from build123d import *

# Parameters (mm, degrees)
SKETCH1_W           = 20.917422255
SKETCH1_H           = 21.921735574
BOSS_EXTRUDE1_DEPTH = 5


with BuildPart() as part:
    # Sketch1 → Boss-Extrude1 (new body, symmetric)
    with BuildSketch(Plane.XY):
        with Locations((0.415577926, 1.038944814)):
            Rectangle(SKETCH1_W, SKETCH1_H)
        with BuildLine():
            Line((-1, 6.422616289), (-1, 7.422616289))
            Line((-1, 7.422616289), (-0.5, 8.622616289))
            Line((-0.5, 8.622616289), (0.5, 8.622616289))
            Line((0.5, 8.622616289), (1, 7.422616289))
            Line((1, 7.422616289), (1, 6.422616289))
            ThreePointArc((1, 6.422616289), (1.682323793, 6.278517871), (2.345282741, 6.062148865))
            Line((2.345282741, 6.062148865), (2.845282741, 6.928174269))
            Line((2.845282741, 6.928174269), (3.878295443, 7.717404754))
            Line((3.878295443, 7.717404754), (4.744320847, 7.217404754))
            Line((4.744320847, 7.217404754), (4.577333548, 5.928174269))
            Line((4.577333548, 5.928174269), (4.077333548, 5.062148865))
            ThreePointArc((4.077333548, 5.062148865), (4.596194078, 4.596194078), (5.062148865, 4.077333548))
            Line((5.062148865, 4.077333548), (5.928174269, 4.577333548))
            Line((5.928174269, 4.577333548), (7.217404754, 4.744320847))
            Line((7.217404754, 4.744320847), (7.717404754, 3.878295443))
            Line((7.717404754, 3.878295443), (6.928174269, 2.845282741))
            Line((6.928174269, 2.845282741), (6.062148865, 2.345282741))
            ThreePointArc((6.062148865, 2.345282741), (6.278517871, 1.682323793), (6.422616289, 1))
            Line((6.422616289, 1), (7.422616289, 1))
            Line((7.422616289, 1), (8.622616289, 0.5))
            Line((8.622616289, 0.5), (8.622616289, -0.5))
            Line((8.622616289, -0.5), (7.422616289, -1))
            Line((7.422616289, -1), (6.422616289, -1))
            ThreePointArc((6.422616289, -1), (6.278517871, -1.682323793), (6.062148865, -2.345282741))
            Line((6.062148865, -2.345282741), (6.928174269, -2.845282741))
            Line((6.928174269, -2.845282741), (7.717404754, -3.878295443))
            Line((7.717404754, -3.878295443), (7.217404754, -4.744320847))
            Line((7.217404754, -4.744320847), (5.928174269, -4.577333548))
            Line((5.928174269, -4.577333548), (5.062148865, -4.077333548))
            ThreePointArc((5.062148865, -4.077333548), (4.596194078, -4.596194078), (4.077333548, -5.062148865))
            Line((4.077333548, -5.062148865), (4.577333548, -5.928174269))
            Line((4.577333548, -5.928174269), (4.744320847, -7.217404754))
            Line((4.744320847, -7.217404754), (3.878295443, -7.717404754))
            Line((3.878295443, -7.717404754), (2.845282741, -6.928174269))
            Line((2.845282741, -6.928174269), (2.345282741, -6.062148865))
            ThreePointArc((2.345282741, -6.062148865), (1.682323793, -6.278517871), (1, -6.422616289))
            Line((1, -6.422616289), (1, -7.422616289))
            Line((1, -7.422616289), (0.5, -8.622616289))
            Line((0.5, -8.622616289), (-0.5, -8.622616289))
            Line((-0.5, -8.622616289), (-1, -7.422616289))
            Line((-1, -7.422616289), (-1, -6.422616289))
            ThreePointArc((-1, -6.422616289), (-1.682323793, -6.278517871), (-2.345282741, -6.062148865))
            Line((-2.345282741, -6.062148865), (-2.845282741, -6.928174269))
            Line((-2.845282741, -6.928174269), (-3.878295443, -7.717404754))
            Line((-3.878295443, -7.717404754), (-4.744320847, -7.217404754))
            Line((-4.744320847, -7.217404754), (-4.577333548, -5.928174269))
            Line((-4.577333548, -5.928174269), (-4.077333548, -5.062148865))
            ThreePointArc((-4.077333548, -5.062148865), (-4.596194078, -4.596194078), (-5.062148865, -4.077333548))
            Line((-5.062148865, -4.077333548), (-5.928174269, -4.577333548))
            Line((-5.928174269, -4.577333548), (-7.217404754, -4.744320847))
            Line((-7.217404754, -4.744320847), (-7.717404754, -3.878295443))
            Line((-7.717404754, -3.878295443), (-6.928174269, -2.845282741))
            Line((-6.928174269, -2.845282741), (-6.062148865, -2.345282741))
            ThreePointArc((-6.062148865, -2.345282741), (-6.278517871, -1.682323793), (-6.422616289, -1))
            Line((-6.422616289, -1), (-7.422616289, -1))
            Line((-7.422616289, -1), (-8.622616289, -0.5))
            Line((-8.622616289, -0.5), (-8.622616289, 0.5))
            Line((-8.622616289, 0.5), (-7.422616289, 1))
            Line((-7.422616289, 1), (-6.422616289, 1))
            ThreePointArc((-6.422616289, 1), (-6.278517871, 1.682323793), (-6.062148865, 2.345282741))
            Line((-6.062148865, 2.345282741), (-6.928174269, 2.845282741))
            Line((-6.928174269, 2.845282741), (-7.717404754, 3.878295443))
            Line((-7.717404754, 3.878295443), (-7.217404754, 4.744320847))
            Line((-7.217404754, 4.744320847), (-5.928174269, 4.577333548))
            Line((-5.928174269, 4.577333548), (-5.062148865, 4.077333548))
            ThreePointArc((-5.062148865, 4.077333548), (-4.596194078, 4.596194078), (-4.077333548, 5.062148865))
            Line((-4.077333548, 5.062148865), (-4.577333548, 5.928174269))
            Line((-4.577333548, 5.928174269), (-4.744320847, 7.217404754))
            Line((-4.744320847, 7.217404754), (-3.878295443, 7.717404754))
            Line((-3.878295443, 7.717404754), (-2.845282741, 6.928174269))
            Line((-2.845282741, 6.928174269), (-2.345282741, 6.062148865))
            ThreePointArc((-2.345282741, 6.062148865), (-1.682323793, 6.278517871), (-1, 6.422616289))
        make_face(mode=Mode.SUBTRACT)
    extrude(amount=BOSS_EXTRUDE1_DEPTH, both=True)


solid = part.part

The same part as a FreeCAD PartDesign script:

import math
import FreeCAD as App
import Part
import Sketcher

V = App.Vector
Q = App.Units.Quantity

doc = App.newDocument("Part")
body = doc.addObject("PartDesign::Body", "Body")

# Sketch on XY plane
sketch1 = body.newObject("Sketcher::SketchObject", "Sketch")
sketch1.AttachmentSupport = (doc.getObject("XY_Plane"), [""])
sketch1.MapMode = "FlatFace"
sketch1.addGeometry([
    Part.LineSegment(V(-10.043133, 11.999813, 0), V(-10.043133, -9.921923, 0)),  # 0
    Part.LineSegment(V(-10.043133, -9.921923, 0), V(10.874289, -9.921923, 0)),  # 1
    Part.LineSegment(V(10.874289, -9.921923, 0), V(10.874289, 11.999813, 0)),  # 2
    Part.LineSegment(V(10.874289, 11.999813, 0), V(-10.043133, 11.999813, 0)),  # 3
    Part.ArcOfCircle(Part.Circle(V(0, 0, 0), V(0, 0, 1), 6.5), math.radians(98.849883), math.radians(111.150117)),  # 4
    Part.LineSegment(V(-1, 6.422616, 0), V(-1, 7.422616, 0)),  # 5
    Part.LineSegment(V(-1, 7.422616, 0), V(-0.5, 8.622616, 0)),  # 6
    Part.LineSegment(V(-0.5, 8.622616, 0), V(0.5, 8.622616, 0)),  # 7
    Part.LineSegment(V(0.5, 8.622616, 0), V(1, 7.422616, 0)),  # 8
    Part.LineSegment(V(1, 7.422616, 0), V(1, 6.422616, 0)),  # 9
    Part.ArcOfCircle(Part.Circle(V(0, 0, 0), V(0, 0, 1), 6.5), math.radians(68.849883), math.radians(81.150117)),  # 10
    Part.LineSegment(V(2.345283, 6.062149, 0), V(2.845283, 6.928174, 0)),  # 11
    Part.LineSegment(V(2.845283, 6.928174, 0), V(3.878295, 7.717405, 0)),  # 12
    Part.LineSegment(V(3.878295, 7.717405, 0), V(4.744321, 7.217405, 0)),  # 13
    Part.LineSegment(V(4.744321, 7.217405, 0), V(4.577334, 5.928174, 0)),  # 14
    Part.LineSegment(V(4.577334, 5.928174, 0), V(4.077334, 5.062149, 0)),  # 15
    Part.ArcOfCircle(Part.Circle(V(0, 0, 0), V(0, 0, 1), 6.5), math.radians(38.849883), math.radians(51.150117)),  # 16
    Part.LineSegment(V(5.062149, 4.077334, 0), V(5.928174, 4.577334, 0)),  # 17
    Part.LineSegment(V(5.928174, 4.577334, 0), V(7.217405, 4.744321, 0)),  # 18
    Part.LineSegment(V(7.217405, 4.744321, 0), V(7.717405, 3.878295, 0)),  # 19
    Part.LineSegment(V(7.717405, 3.878295, 0), V(6.928174, 2.845283, 0)),  # 20
    Part.LineSegment(V(6.928174, 2.845283, 0), V(6.062149, 2.345283, 0)),  # 21
    Part.ArcOfCircle(Part.Circle(V(0, 0, 0), V(0, 0, 1), 6.5), math.radians(8.849883), math.radians(21.150117)),  # 22
    Part.LineSegment(V(6.422616, 1, 0), V(7.422616, 1, 0)),  # 23
    Part.LineSegment(V(7.422616, 1, 0), V(8.622616, 0.5, 0)),  # 24
    Part.LineSegment(V(8.622616, 0.5, 0), V(8.622616, -0.5, 0)),  # 25
    Part.LineSegment(V(8.622616, -0.5, 0), V(7.422616, -1, 0)),  # 26
    Part.LineSegment(V(7.422616, -1, 0), V(6.422616, -1, 0)),  # 27
    Part.ArcOfCircle(Part.Circle(V(0, 0, 0), V(0, 0, 1), 6.5), math.radians(-21.150117), math.radians(-8.849883)),  # 28
    Part.LineSegment(V(6.062149, -2.345283, 0), V(6.928174, -2.845283, 0)),  # 29
    Part.LineSegment(V(6.928174, -2.845283, 0), V(7.717405, -3.878295, 0)),  # 30
    Part.LineSegment(V(7.717405, -3.878295, 0), V(7.217405, -4.744321, 0)),  # 31
    Part.LineSegment(V(7.217405, -4.744321, 0), V(5.928174, -4.577334, 0)),  # 32
    Part.LineSegment(V(5.928174, -4.577334, 0), V(5.062149, -4.077334, 0)),  # 33
    Part.ArcOfCircle(Part.Circle(V(0, 0, 0), V(0, 0, 1), 6.5), math.radians(-51.150117), math.radians(-38.849883)),  # 34
    Part.LineSegment(V(4.077334, -5.062149, 0), V(4.577334, -5.928174, 0)),  # 35
    Part.LineSegment(V(4.577334, -5.928174, 0), V(4.744321, -7.217405, 0)),  # 36
    Part.LineSegment(V(4.744321, -7.217405, 0), V(3.878295, -7.717405, 0)),  # 37
    Part.LineSegment(V(3.878295, -7.717405, 0), V(2.845283, -6.928174, 0)),  # 38
    Part.LineSegment(V(2.845283, -6.928174, 0), V(2.345283, -6.062149, 0)),  # 39
    Part.ArcOfCircle(Part.Circle(V(0, 0, 0), V(0, 0, 1), 6.5), math.radians(-81.150117), math.radians(-68.849883)),  # 40
    Part.LineSegment(V(1, -6.422616, 0), V(1, -7.422616, 0)),  # 41
    Part.LineSegment(V(1, -7.422616, 0), V(0.5, -8.622616, 0)),  # 42
    Part.LineSegment(V(0.5, -8.622616, 0), V(-0.5, -8.622616, 0)),  # 43
    Part.LineSegment(V(-0.5, -8.622616, 0), V(-1, -7.422616, 0)),  # 44
    Part.LineSegment(V(-1, -7.422616, 0), V(-1, -6.422616, 0)),  # 45
    Part.ArcOfCircle(Part.Circle(V(0, 0, 0), V(0, 0, 1), 6.5), math.radians(-111.150117), math.radians(-98.849883)),  # 46
    Part.LineSegment(V(-2.345283, -6.062149, 0), V(-2.845283, -6.928174, 0)),  # 47
    Part.LineSegment(V(-2.845283, -6.928174, 0), V(-3.878295, -7.717405, 0)),  # 48
    Part.LineSegment(V(-3.878295, -7.717405, 0), V(-4.744321, -7.217405, 0)),  # 49
    Part.LineSegment(V(-4.744321, -7.217405, 0), V(-4.577334, -5.928174, 0)),  # 50
    Part.LineSegment(V(-4.577334, -5.928174, 0), V(-4.077334, -5.062149, 0)),  # 51
    Part.ArcOfCircle(Part.Circle(V(0, 0, 0), V(0, 0, 1), 6.5), math.radians(-141.150117), math.radians(-128.849883)),  # 52
    Part.LineSegment(V(-5.062149, -4.077334, 0), V(-5.928174, -4.577334, 0)),  # 53
    Part.LineSegment(V(-5.928174, -4.577334, 0), V(-7.217405, -4.744321, 0)),  # 54
    Part.LineSegment(V(-7.217405, -4.744321, 0), V(-7.717405, -3.878295, 0)),  # 55
    Part.LineSegment(V(-7.717405, -3.878295, 0), V(-6.928174, -2.845283, 0)),  # 56
    Part.LineSegment(V(-6.928174, -2.845283, 0), V(-6.062149, -2.345283, 0)),  # 57
    Part.ArcOfCircle(Part.Circle(V(0, 0, 0), V(0, 0, 1), 6.5), math.radians(-171.150117), math.radians(-158.849883)),  # 58
    Part.LineSegment(V(-6.422616, -1, 0), V(-7.422616, -1, 0)),  # 59
    Part.LineSegment(V(-7.422616, -1, 0), V(-8.622616, -0.5, 0)),  # 60
    Part.LineSegment(V(-8.622616, -0.5, 0), V(-8.622616, 0.5, 0)),  # 61
    Part.LineSegment(V(-8.622616, 0.5, 0), V(-7.422616, 1, 0)),  # 62
    Part.LineSegment(V(-7.422616, 1, 0), V(-6.422616, 1, 0)),  # 63
    Part.ArcOfCircle(Part.Circle(V(0, 0, 0), V(0, 0, 1), 6.5), math.radians(158.849883), math.radians(171.150117)),  # 64
    Part.LineSegment(V(-6.062149, 2.345283, 0), V(-6.928174, 2.845283, 0)),  # 65
    Part.LineSegment(V(-6.928174, 2.845283, 0), V(-7.717405, 3.878295, 0)),  # 66
    Part.LineSegment(V(-7.717405, 3.878295, 0), V(-7.217405, 4.744321, 0)),  # 67
    Part.LineSegment(V(-7.217405, 4.744321, 0), V(-5.928174, 4.577334, 0)),  # 68
    Part.LineSegment(V(-5.928174, 4.577334, 0), V(-5.062149, 4.077334, 0)),  # 69
    Part.ArcOfCircle(Part.Circle(V(0, 0, 0), V(0, 0, 1), 6.5), math.radians(128.849883), math.radians(141.150117)),  # 70
    Part.LineSegment(V(-4.077334, 5.062149, 0), V(-4.577334, 5.928174, 0)),  # 71
    Part.LineSegment(V(-4.577334, 5.928174, 0), V(-4.744321, 7.217405, 0)),  # 72
    Part.LineSegment(V(-4.744321, 7.217405, 0), V(-3.878295, 7.717405, 0)),  # 73
    Part.LineSegment(V(-3.878295, 7.717405, 0), V(-2.845283, 6.928174, 0)),  # 74
    Part.LineSegment(V(-2.845283, 6.928174, 0), V(-2.345283, 6.062149, 0)),  # 75
], False)
sketch1.addConstraint([
    Sketcher.Constraint("Coincident", 0, 2, 1, 1),
    Sketcher.Constraint("Coincident", 1, 2, 2, 1),
    Sketcher.Constraint("Coincident", 2, 2, 3, 1),
    Sketcher.Constraint("Coincident", 3, 2, 0, 1),
    Sketcher.Constraint("Coincident", 4, 1, 5, 1),
    Sketcher.Constraint("Coincident", 5, 2, 6, 1),
    Sketcher.Constraint("Coincident", 6, 2, 7, 1),
    Sketcher.Constraint("Coincident", 7, 2, 8, 1),
    Sketcher.Constraint("Coincident", 8, 2, 9, 1),
    Sketcher.Constraint("Coincident", 9, 2, 10, 2),
    Sketcher.Constraint("Coincident", 10, 1, 11, 1),
    Sketcher.Constraint("Coincident", 11, 2, 12, 1),
    Sketcher.Constraint("Coincident", 12, 2, 13, 1),
    Sketcher.Constraint("Coincident", 13, 2, 14, 1),
    Sketcher.Constraint("Coincident", 14, 2, 15, 1),
    Sketcher.Constraint("Coincident", 15, 2, 16, 2),
    Sketcher.Constraint("Coincident", 16, 1, 17, 1),
    Sketcher.Constraint("Coincident", 17, 2, 18, 1),
    Sketcher.Constraint("Coincident", 18, 2, 19, 1),
    Sketcher.Constraint("Coincident", 19, 2, 20, 1),
    Sketcher.Constraint("Coincident", 20, 2, 21, 1),
    Sketcher.Constraint("Coincident", 21, 2, 22, 2),
    Sketcher.Constraint("Coincident", 22, 1, 23, 1),
    Sketcher.Constraint("Coincident", 23, 2, 24, 1),
    Sketcher.Constraint("Coincident", 24, 2, 25, 1),
    Sketcher.Constraint("Coincident", 25, 2, 26, 1),
    Sketcher.Constraint("Coincident", 26, 2, 27, 1),
    Sketcher.Constraint("Coincident", 27, 2, 28, 2),
    Sketcher.Constraint("Coincident", 28, 1, 29, 1),
    Sketcher.Constraint("Coincident", 29, 2, 30, 1),
    Sketcher.Constraint("Coincident", 30, 2, 31, 1),
    Sketcher.Constraint("Coincident", 31, 2, 32, 1),
    Sketcher.Constraint("Coincident", 32, 2, 33, 1),
    Sketcher.Constraint("Coincident", 33, 2, 34, 2),
    Sketcher.Constraint("Coincident", 34, 1, 35, 1),
    Sketcher.Constraint("Coincident", 35, 2, 36, 1),
    Sketcher.Constraint("Coincident", 36, 2, 37, 1),
    Sketcher.Constraint("Coincident", 37, 2, 38, 1),
    Sketcher.Constraint("Coincident", 38, 2, 39, 1),
    Sketcher.Constraint("Coincident", 39, 2, 40, 2),
    Sketcher.Constraint("Coincident", 40, 1, 41, 1),
    Sketcher.Constraint("Coincident", 41, 2, 42, 1),
    Sketcher.Constraint("Coincident", 42, 2, 43, 1),
    Sketcher.Constraint("Coincident", 43, 2, 44, 1),
    Sketcher.Constraint("Coincident", 44, 2, 45, 1),
    Sketcher.Constraint("Coincident", 45, 2, 46, 2),
    Sketcher.Constraint("Coincident", 46, 1, 47, 1),
    Sketcher.Constraint("Coincident", 47, 2, 48, 1),
    Sketcher.Constraint("Coincident", 48, 2, 49, 1),
    Sketcher.Constraint("Coincident", 49, 2, 50, 1),
    Sketcher.Constraint("Coincident", 50, 2, 51, 1),
    Sketcher.Constraint("Coincident", 51, 2, 52, 2),
    Sketcher.Constraint("Coincident", 52, 1, 53, 1),
    Sketcher.Constraint("Coincident", 53, 2, 54, 1),
    Sketcher.Constraint("Coincident", 54, 2, 55, 1),
    Sketcher.Constraint("Coincident", 55, 2, 56, 1),
    Sketcher.Constraint("Coincident", 56, 2, 57, 1),
    Sketcher.Constraint("Coincident", 57, 2, 58, 2),
    Sketcher.Constraint("Coincident", 58, 1, 59, 1),
    Sketcher.Constraint("Coincident", 59, 2, 60, 1),
    Sketcher.Constraint("Coincident", 60, 2, 61, 1),
    Sketcher.Constraint("Coincident", 61, 2, 62, 1),
    Sketcher.Constraint("Coincident", 62, 2, 63, 1),
    Sketcher.Constraint("Coincident", 63, 2, 64, 2),
    Sketcher.Constraint("Coincident", 64, 1, 65, 1),
    Sketcher.Constraint("Coincident", 65, 2, 66, 1),
    Sketcher.Constraint("Coincident", 66, 2, 67, 1),
    Sketcher.Constraint("Coincident", 67, 2, 68, 1),
    Sketcher.Constraint("Coincident", 68, 2, 69, 1),
    Sketcher.Constraint("Coincident", 69, 2, 70, 2),
    Sketcher.Constraint("Coincident", 70, 1, 71, 1),
    Sketcher.Constraint("Coincident", 71, 2, 72, 1),
    Sketcher.Constraint("Coincident", 72, 2, 73, 1),
    Sketcher.Constraint("Coincident", 73, 2, 74, 1),
    Sketcher.Constraint("Coincident", 74, 2, 75, 1),
    Sketcher.Constraint("Coincident", 75, 2, 4, 2),
    Sketcher.Constraint("Vertical", 0),
    Sketcher.Constraint("Horizontal", 1),
    Sketcher.Constraint("Vertical", 2),
    Sketcher.Constraint("Horizontal", 3),
    Sketcher.Constraint("Vertical", 5),
    Sketcher.Constraint("Horizontal", 7),
    Sketcher.Constraint("Vertical", 9),
    Sketcher.Constraint("Horizontal", 23),
    Sketcher.Constraint("Vertical", 25),
    Sketcher.Constraint("Horizontal", 27),
    Sketcher.Constraint("Vertical", 41),
    Sketcher.Constraint("Horizontal", 43),
    Sketcher.Constraint("Vertical", 45),
    Sketcher.Constraint("Horizontal", 59),
    Sketcher.Constraint("Vertical", 61),
    Sketcher.Constraint("Horizontal", 63),
    Sketcher.Constraint("Coincident", 4, 3, -1, 1),
    Sketcher.Constraint("Coincident", 10, 3, -1, 1),
    Sketcher.Constraint("Coincident", 16, 3, -1, 1),
    Sketcher.Constraint("Coincident", 22, 3, -1, 1),
    Sketcher.Constraint("Coincident", 28, 3, -1, 1),
    Sketcher.Constraint("Coincident", 34, 3, -1, 1),
    Sketcher.Constraint("Coincident", 40, 3, -1, 1),
    Sketcher.Constraint("Coincident", 46, 3, -1, 1),
    Sketcher.Constraint("Coincident", 52, 3, -1, 1),
    Sketcher.Constraint("Coincident", 58, 3, -1, 1),
    Sketcher.Constraint("Coincident", 64, 3, -1, 1),
    Sketcher.Constraint("Coincident", 70, 3, -1, 1),
    Sketcher.Constraint("Equal", 4, 10),
    Sketcher.Constraint("Equal", 10, 16),
    Sketcher.Constraint("Equal", 16, 22),
    Sketcher.Constraint("Equal", 22, 28),
    Sketcher.Constraint("Equal", 28, 34),
    Sketcher.Constraint("Equal", 34, 40),
    Sketcher.Constraint("Equal", 40, 46),
    Sketcher.Constraint("Equal", 46, 52),
    Sketcher.Constraint("Equal", 52, 58),
    Sketcher.Constraint("Equal", 58, 64),
    Sketcher.Constraint("Equal", 64, 70),
    Sketcher.Constraint("Symmetric", 5, 2, 41, 2, -1, 1),
    Sketcher.Constraint("Symmetric", 6, 2, 42, 2, -1, 1),
    Sketcher.Constraint("Symmetric", 8, 2, 44, 2, -1, 1),
    Sketcher.Constraint("Symmetric", 11, 2, 47, 2, -1, 1),
    Sketcher.Constraint("Symmetric", 12, 2, 48, 2, -1, 1),
    Sketcher.Constraint("Symmetric", 13, 2, 49, 2, -1, 1),
    Sketcher.Constraint("Symmetric", 14, 2, 50, 2, -1, 1),
    Sketcher.Constraint("Symmetric", 17, 2, 53, 2, -1, 1),
    Sketcher.Constraint("Symmetric", 18, 2, 54, 2, -1, 1),
    Sketcher.Constraint("Symmetric", 19, 2, 55, 2, -1, 1),
    Sketcher.Constraint("Symmetric", 20, 2, 56, 2, -1, 1),
    Sketcher.Constraint("Symmetric", 23, 2, 59, 2, -1, 1),
    Sketcher.Constraint("Symmetric", 24, 2, 60, 2, -1, 1),
    Sketcher.Constraint("Symmetric", 26, 2, 62, 2, -1, 1),
    Sketcher.Constraint("Symmetric", 29, 2, 65, 2, -1, 1),
    Sketcher.Constraint("Symmetric", 30, 2, 66, 2, -1, 1),
    Sketcher.Constraint("Symmetric", 31, 2, 67, 2, -1, 1),
    Sketcher.Constraint("Symmetric", 32, 2, 68, 2, -1, 1),
    Sketcher.Constraint("Symmetric", 35, 2, 71, 2, -1, 1),
    Sketcher.Constraint("Symmetric", 36, 2, 72, 2, -1, 1),
    Sketcher.Constraint("Symmetric", 37, 2, 73, 2, -1, 1),
    Sketcher.Constraint("Symmetric", 38, 2, 74, 2, -1, 1),
    Sketcher.Constraint("Symmetric", 5, 2, 8, 2, -2),
    Sketcher.Constraint("Symmetric", 38, 2, 47, 2, -2),
    Sketcher.Constraint("Symmetric", 37, 2, 48, 2, -2),
    Sketcher.Constraint("Symmetric", 36, 2, 49, 2, -2),
    Sketcher.Constraint("Symmetric", 35, 2, 50, 2, -2),
    Sketcher.Constraint("Symmetric", 32, 2, 53, 2, -2),
    Sketcher.Constraint("Symmetric", 31, 2, 54, 2, -2),
    Sketcher.Constraint("Symmetric", 30, 2, 55, 2, -2),
    Sketcher.Constraint("Symmetric", 29, 2, 56, 2, -2),
    Sketcher.Constraint("Symmetric", 26, 2, 59, 2, -2),
    Sketcher.Constraint("Perpendicular", 11, 13),
    Sketcher.Constraint("Perpendicular", 13, 15),
    Sketcher.Constraint("Perpendicular", 17, 19),
    Sketcher.Constraint("Perpendicular", 19, 21),
    Sketcher.Constraint("Perpendicular", 6, 24),
    Sketcher.Constraint("Perpendicular", 8, 26),
    Sketcher.Constraint("Perpendicular", 15, 29),
    Sketcher.Constraint("Perpendicular", 12, 30),
    Sketcher.Constraint("Perpendicular", 29, 31),
    Sketcher.Constraint("Perpendicular", 14, 32),
    Sketcher.Constraint("Perpendicular", 31, 33),
    Sketcher.Constraint("Perpendicular", 21, 35),
    Sketcher.Constraint("Perpendicular", 37, 39),
    Sketcher.Constraint("Perpendicular", 26, 44),
    Sketcher.Constraint("Perpendicular", 33, 47),
    Sketcher.Constraint("Perpendicular", 49, 51),
    Sketcher.Constraint("Perpendicular", 39, 53),
    Sketcher.Constraint("Perpendicular", 55, 57),
    Sketcher.Constraint("Perpendicular", 44, 62),
    Sketcher.Constraint("Perpendicular", 51, 65),
    Sketcher.Constraint("Perpendicular", 67, 69),
    Sketcher.Constraint("Perpendicular", 57, 71),
    Sketcher.Constraint("Perpendicular", 73, 75),
    Sketcher.Constraint("Horizontal", 25, 2, 60, 2),
    Sketcher.Constraint("Equal", 7, 23),
    Sketcher.Constraint("Equal", 63, 5),
    Sketcher.Constraint("Equal", 9, 25),
    Sketcher.Constraint("Equal", 8, 12),
    Sketcher.Constraint("Equal", 11, 13),
    Sketcher.Constraint("Equal", 12, 14),
    Sketcher.Constraint("Equal", 13, 15),
    Sketcher.Constraint("Equal", 15, 17),
    Sketcher.Constraint("Equal", 14, 18),
    Sketcher.Constraint("Equal", 17, 19),
    Sketcher.Constraint("Equal", 18, 20),
    Sketcher.Constraint("Equal", 19, 21),
    Sketcher.Constraint("Equal", 20, 24),
    Sketcher.Constraint("Radius", 4, Q("6.5 mm")),
    Sketcher.Constraint("DistanceX", 7, 1, 7, 2, Q("1 mm")),
    Sketcher.Constraint("Angle", 11, Q("60 deg")),
    Sketcher.Constraint("Distance", 11, Q("1 mm")),
    Sketcher.Constraint("DistanceX", 4, 1, -1, 1, Q("1 mm")),
    Sketcher.Constraint("Distance", 6, Q("1.3 mm")),
    Sketcher.Constraint("DistanceX", 1, 1, 1, 2, Q("20.917422 mm")),
    Sketcher.Constraint("DistanceY", 0, 2, 0, 1, Q("21.921736 mm")),
    Sketcher.Constraint("DistanceX", -1, 1, 1, 2, Q("10.874289 mm")),
    Sketcher.Constraint("DistanceY", -1, 1, 10, 1, Q("6.062149 mm")),
    Sketcher.Constraint("DistanceX", -1, 1, 13, 2, Q("4.744321 mm")),
    Sketcher.Constraint("DistanceY", 0, 2, -1, 1, Q("9.921923 mm")),
])
pad1 = body.newObject("PartDesign::Pad", "Pad")
pad1.Profile = sketch1
pad1.Length = 10
pad1.Midplane = True

doc.recompute()
